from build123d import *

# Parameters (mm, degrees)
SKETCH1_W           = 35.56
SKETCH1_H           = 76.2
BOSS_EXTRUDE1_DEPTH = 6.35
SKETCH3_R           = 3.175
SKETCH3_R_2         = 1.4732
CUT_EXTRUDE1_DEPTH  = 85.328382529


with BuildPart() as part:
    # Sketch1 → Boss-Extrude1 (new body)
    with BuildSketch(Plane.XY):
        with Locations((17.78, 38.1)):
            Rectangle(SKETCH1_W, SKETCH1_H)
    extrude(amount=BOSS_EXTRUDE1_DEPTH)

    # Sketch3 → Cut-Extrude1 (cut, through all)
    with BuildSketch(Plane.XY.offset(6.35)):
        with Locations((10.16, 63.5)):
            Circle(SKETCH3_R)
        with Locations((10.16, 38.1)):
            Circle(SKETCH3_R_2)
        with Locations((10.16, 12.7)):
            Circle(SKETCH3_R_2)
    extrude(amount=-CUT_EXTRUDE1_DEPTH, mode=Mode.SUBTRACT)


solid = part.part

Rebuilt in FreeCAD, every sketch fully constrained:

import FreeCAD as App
import Part
import Sketcher
Q = App.Units.Quantity


def add_polygon(sketch, points):
    """Adds a closed chain of lines whose ends are joined by coincident constraints."""
    first, n = sketch.GeometryCount, len(points)
    for a, b in zip(points, points[1:] + points[:1]):
        sketch.addGeometry(Part.LineSegment(App.Vector(*a, 0), App.Vector(*b, 0)), False)
    for i in range(n):
        sketch.addConstraint(Sketcher.Constraint("Coincident", first + i, 2, first + (i + 1) % n, 1))

doc = App.newDocument("Part")
body = doc.addObject("PartDesign::Body", "Body")

# Sketch on XY plane
sketch1 = doc.addObject("Sketcher::SketchObject", "Sketch")
body.addObject(sketch1)
sketch1.AttachmentSupport = (doc.XY_Plane, [""])
sketch1.MapMode = "FlatFace"
add_polygon(sketch1, [(0, 76.2), (0, 0), (35.56, 0), (35.56, 76.2)])  # lines 0-3
sketch1.addConstraint(Sketcher.Constraint("Vertical", 0))
sketch1.addConstraint(Sketcher.Constraint("Horizontal", 1))
sketch1.addConstraint(Sketcher.Constraint("Vertical", 2))
sketch1.addConstraint(Sketcher.Constraint("Horizontal", 3))
sketch1.addConstraint(Sketcher.Constraint("Coincident", 0, 2, -1, 1))
sketch1.addConstraint(Sketcher.Constraint("DistanceY", 0, 2, 0, 1, Q("3 in")))
sketch1.addConstraint(Sketcher.Constraint("DistanceX", 1, 1, 1, 2, Q("1.4 in")))
pad1 = doc.addObject("PartDesign::Pad", "Pad")
body.addObject(pad1)
pad1.Profile = sketch1
pad1.Length = Q("0.25 in")

# Sketch on XY plane
sketch2 = doc.addObject("Sketcher::SketchObject", "Sketch001")
body.addObject(sketch2)
sketch2.AttachmentSupport = (doc.XY_Plane, [""])
sketch2.MapMode = "FlatFace"
sketch2.AttachmentOffset = App.Placement(App.Vector(0, 0, 0.25 * 25.4), App.Rotation())
sketch2.addGeometry(Part.Circle(App.Vector(10.16, 63.5, 0), App.Vector(0, 0, 1), 3.175), False)
sketch2.addGeometry(Part.Circle(App.Vector(10.16, 38.1, 0), App.Vector(0, 0, 1), 1.4732), False)
sketch2.addGeometry(Part.Circle(App.Vector(10.16, 12.7, 0), App.Vector(0, 0, 1), 1.4732), False)
sketch2.addConstraint(Sketcher.Constraint("Equal", 1, 2))
sketch2.addConstraint(Sketcher.Constraint("Vertical", 0, 3, 1, 3))
sketch2.addConstraint(Sketcher.Constraint("Vertical", 1, 3, 2, 3))
sketch2.addConstraint(Sketcher.Constraint("Diameter", 0, Q("0.25 in")))
sketch2.addConstraint(Sketcher.Constraint("Diameter", 1, Q("0.116 in")))
sketch2.addConstraint(Sketcher.Constraint("DistanceY", 1, 3, 0, 3, Q("1 in")))
sketch2.addConstraint(Sketcher.Constraint("DistanceY", 2, 3, 1, 3, Q("1 in")))
sketch2.addConstraint(Sketcher.Constraint("DistanceX", -1, 1, 0, 3, Q("0.4 in")))
sketch2.addConstraint(Sketcher.Constraint("DistanceY", -1, 1, 0, 3, Q("2.5 in")))
pocket1 = doc.addObject("PartDesign::Pocket", "Pocket")
body.addObject(pocket1)
pocket1.Profile = sketch2
pocket1.Type = "ThroughAll"

doc.recompute()
